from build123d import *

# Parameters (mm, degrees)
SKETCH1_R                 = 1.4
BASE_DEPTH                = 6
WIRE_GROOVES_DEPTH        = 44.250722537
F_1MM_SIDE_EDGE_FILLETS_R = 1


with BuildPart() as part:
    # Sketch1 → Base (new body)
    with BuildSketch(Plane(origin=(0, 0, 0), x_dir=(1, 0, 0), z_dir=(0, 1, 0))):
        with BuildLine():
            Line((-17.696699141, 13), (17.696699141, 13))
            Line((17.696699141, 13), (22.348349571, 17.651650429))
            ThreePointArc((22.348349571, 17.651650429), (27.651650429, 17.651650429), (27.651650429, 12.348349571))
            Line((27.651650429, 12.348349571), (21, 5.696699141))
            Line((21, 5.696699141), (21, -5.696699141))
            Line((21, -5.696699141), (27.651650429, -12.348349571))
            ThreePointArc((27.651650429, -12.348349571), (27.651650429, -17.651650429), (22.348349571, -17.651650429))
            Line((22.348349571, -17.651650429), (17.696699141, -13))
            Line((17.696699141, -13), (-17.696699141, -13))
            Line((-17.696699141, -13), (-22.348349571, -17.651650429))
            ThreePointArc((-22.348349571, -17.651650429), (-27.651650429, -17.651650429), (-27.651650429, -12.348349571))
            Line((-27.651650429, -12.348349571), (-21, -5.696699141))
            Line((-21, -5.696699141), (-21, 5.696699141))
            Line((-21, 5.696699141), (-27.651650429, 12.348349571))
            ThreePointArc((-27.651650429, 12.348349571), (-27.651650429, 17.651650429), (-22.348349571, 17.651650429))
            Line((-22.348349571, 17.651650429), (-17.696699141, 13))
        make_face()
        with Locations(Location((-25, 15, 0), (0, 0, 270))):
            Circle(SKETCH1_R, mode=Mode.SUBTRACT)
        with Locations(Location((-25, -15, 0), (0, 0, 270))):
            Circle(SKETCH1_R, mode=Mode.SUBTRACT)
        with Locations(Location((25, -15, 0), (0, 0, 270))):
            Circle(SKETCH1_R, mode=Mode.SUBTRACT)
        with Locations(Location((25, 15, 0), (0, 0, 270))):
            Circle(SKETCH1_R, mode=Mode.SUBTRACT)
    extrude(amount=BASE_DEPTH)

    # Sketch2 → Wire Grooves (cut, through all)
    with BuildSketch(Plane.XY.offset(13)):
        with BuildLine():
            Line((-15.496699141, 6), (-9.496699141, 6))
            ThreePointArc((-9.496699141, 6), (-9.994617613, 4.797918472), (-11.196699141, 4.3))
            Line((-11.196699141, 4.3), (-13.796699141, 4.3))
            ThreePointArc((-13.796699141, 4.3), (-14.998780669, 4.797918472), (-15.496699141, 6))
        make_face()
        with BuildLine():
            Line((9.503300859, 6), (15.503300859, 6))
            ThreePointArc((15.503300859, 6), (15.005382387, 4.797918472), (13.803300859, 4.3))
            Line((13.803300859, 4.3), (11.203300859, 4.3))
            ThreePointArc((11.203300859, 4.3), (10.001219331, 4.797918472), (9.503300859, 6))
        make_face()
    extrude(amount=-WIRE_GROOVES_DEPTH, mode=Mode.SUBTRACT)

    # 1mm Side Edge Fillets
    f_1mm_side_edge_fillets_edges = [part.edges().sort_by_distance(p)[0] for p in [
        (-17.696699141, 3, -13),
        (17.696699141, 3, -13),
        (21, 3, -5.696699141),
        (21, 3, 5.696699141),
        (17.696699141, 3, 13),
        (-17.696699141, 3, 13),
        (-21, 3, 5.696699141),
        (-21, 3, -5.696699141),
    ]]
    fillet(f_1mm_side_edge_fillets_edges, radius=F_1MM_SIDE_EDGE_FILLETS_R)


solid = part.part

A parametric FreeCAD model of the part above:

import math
import FreeCAD as App
import Part
import Sketcher

V = App.Vector


def edges_at(feature, points):
    """Names of the edges that pass closest to the given points."""
    edges = feature.Shape.Edges
    near = lambda p: min(range(len(edges)), key=lambda i: edges[i].distToShape(Part.Vertex(*p))[0])
    return sorted({f"Edge{near(p) + 1}" for p in points})

doc = App.newDocument("Part")
params = doc.addObject("Spreadsheet::Sheet", "Params")
for row, (alias, value) in enumerate([
    ("sketch1_diameter", "2.8 mm"),
    ("sketch1_radius", "3.75 mm"),
    ("pad1_length", "6 mm"),
    ("sketch2_radius", "1.7 mm"),
    ("sketch2_width", "6 mm"),
    ("fillet_radius", "1 mm"),
], start=1):
    params.set(f"A{row}", alias)
    params.set(f"B{row}", "=" + value)
    params.setAlias(f"B{row}", alias)

body = doc.addObject("PartDesign::Body", "Body")

# Sketch on XZ plane
sketch1 = body.newObject("Sketcher::SketchObject", "Sketch")
sketch1.AttachmentSupport = (doc.getObject("XZ_Plane"), [""])
sketch1.MapMode = "FlatFace"
sketch1.addGeometry(Part.LineSegment(V(17.7, -13, 0), V(-17.7, -13, 0)), False)
sketch1.addGeometry(Part.LineSegment(V(-17.7, -13, 0), V(-22.3, -17.7, 0)), False)
sketch1.addGeometry(Part.ArcOfCircle(Part.Circle(V(-25, -15, 0), V(0, 0, 1), 3.7), math.radians(135), math.radians(315)), False)
sketch1.addGeometry(Part.LineSegment(V(-27.7, -12.3, 0), V(-21, -5.7, 0)), False)
sketch1.addGeometry(Part.LineSegment(V(-21, -5.7, 0), V(-21, 5.7, 0)), False)
sketch1.addGeometry(Part.LineSegment(V(-21, 5.7, 0), V(-27.7, 12.3, 0)), False)
sketch1.addGeometry(Part.ArcOfCircle(Part.Circle(V(-25, 15, 0), V(0, 0, 1), 3.7), math.radians(45), math.radians(225)), False)
sketch1.addGeometry(Part.LineSegment(V(-22.3, 17.7, 0), V(-17.7, 13, 0)), False)
sketch1.addGeometry(Part.LineSegment(V(-17.7, 13, 0), V(17.7, 13, 0)), False)
sketch1.addGeometry(Part.LineSegment(V(17.7, 13, 0), V(22.3, 17.7, 0)), False)
sketch1.addGeometry(Part.ArcOfCircle(Part.Circle(V(25, 15, 0), V(0, 0, 1), 3.7), math.radians(-45), math.radians(135)), False)
sketch1.addGeometry(Part.LineSegment(V(27.7, 12.3, 0), V(21, 5.7, 0)), False)
sketch1.addGeometry(Part.LineSegment(V(21, 5.7, 0), V(21, -5.7, 0)), False)
sketch1.addGeometry(Part.LineSegment(V(21, -5.7, 0), V(27.7, -12.3, 0)), False)
sketch1.addGeometry(Part.ArcOfCircle(Part.Circle(V(25, -15, 0), V(0, 0, 1), 3.7), math.radians(-135), math.radians(45)), False)
sketch1.addGeometry(Part.LineSegment(V(22.3, -17.7, 0), V(17.7, -13, 0)), False)
sketch1.addGeometry(Part.Circle(V(25, 15, 0), V(0, 0, 1), 1.4), False)
sketch1.addGeometry(Part.Circle(V(-25, 15, 0), V(0, 0, 1), 1.4), False)
sketch1.addGeometry(Part.Circle(V(25, -15, 0), V(0, 0, 1), 1.4), False)
sketch1.addGeometry(Part.Circle(V(-25, -15, 0), V(0, 0, 1), 1.4), False)
sketch1.addConstraint(Sketcher.Constraint("Coincident", 0, 2, 1, 1))
sketch1.addConstraint(Sketcher.Constraint("Tangent", 1, 2, 2, 2))
sketch1.addConstraint(Sketcher.Constraint("Tangent", 2, 1, 3, 1))
sketch1.addConstraint(Sketcher.Constraint("Coincident", 3, 2, 4, 1))
sketch1.addConstraint(Sketcher.Constraint("Coincident", 4, 2, 5, 1))
sketch1.addConstraint(Sketcher.Constraint("Tangent", 5, 2, 6, 2))
sketch1.addConstraint(Sketcher.Constraint("Tangent", 6, 1, 7, 1))
sketch1.addConstraint(Sketcher.Constraint("Coincident", 7, 2, 8, 1))
sketch1.addConstraint(Sketcher.Constraint("Coincident", 8, 2, 9, 1))
sketch1.addConstraint(Sketcher.Constraint("Tangent", 9, 2, 10, 2))
sketch1.addConstraint(Sketcher.Constraint("Tangent", 10, 1, 11, 1))
sketch1.addConstraint(Sketcher.Constraint("Coincident", 11, 2, 12, 1))
sketch1.addConstraint(Sketcher.Constraint("Coincident", 12, 2, 13, 1))
sketch1.addConstraint(Sketcher.Constraint("Tangent", 13, 2, 14, 2))
sketch1.addConstraint(Sketcher.Constraint("Tangent", 14, 1, 15, 1))
sketch1.addConstraint(Sketcher.Constraint("Coincident", 15, 2, 0, 1))
sketch1.addConstraint(Sketcher.Constraint("Horizontal", 0))
sketch1.addConstraint(Sketcher.Constraint("Vertical", 4))
sketch1.addConstraint(Sketcher.Constraint("Horizontal", 8))
sketch1.addConstraint(Sketcher.Constraint("Vertical", 12))
sketch1.addConstraint(Sketcher.Constraint("Coincident", 16, 3, 10, 3))
sketch1.addConstraint(Sketcher.Constraint("Coincident", 17, 3, 6, 3))
sketch1.addConstraint(Sketcher.Constraint("Coincident", 18, 3, 14, 3))
sketch1.addConstraint(Sketcher.Constraint("Coincident", 19, 3, 2, 3))
sketch1.addConstraint(Sketcher.Constraint("Equal", 2, 6))
sketch1.addConstraint(Sketcher.Constraint("Equal", 6, 10))
sketch1.addConstraint(Sketcher.Constraint("Equal", 10, 14))
sketch1.addConstraint(Sketcher.Constraint("Equal", 16, 17))
sketch1.addConstraint(Sketcher.Constraint("Equal", 17, 18))
sketch1.addConstraint(Sketcher.Constraint("Equal", 18, 19))
sketch1.addConstraint(Sketcher.Constraint("Symmetric", 2, 3, 10, 3, -1, 1))
sketch1.addConstraint(Sketcher.Constraint("Symmetric", 6, 3, 14, 3, -1, 1))
sketch1.addConstraint(Sketcher.Constraint("Symmetric", 0, 2, 8, 2, -1, 1))
sketch1.addConstraint(Sketcher.Constraint("Symmetric", 3, 2, 11, 2, -1, 1))
sketch1.addConstraint(Sketcher.Constraint("Symmetric", 6, 3, 10, 3, -2))
sketch1.addConstraint(Sketcher.Constraint("Parallel", 1, 3))
sketch1.addConstraint(Sketcher.Constraint("Perpendicular", 3, 5))
sketch1.addConstraint(Sketcher.Constraint("Parallel", 5, 7))
sketch1.addConstraint(Sketcher.Constraint("Perpendicular", 11, 13))
sketch1.addConstraint(Sketcher.Constraint("Parallel", 13, 15))
sketch1.addConstraint(Sketcher.Constraint("Horizontal", 6, 1, 9, 2))
sketch1.addConstraint(Sketcher.Constraint("Diameter", 16, 2.8))
sketch1.addConstraint(Sketcher.Constraint("Radius", 2, 3.75))
sketch1.addConstraint(Sketcher.Constraint("DistanceX", 2, 3, -1, 1, 25.0))
sketch1.addConstraint(Sketcher.Constraint("DistanceY", 2, 3, -1, 1, 15.0))
sketch1.addConstraint(Sketcher.Constraint("DistanceY", 0, 2, -1, 1, 13.0))
sketch1.addConstraint(Sketcher.Constraint("DistanceX", 3, 2, -1, 1, 21.0))
sketch1.setExpression("Constraints[41]", "Params.sketch1_diameter")
sketch1.setExpression("Constraints[42]", "Params.sketch1_radius")
pad1 = body.newObject("PartDesign::Pad", "Pad")
pad1.Profile = sketch1
pad1.setExpression("Length", "Params.pad1_length")
pad1.Reversed = True

# Sketch on XY plane
sketch2 = body.newObject("Sketcher::SketchObject", "Sketch001")
sketch2.AttachmentSupport = (doc.getObject("XY_Plane"), [""])
sketch2.MapMode = "FlatFace"
sketch2.AttachmentOffset = App.Placement(V(0, 0, 13), App.Rotation())
sketch2.addGeometry(Part.LineSegment(V(-9.5, 6, 0), V(-15.5, 6, 0)), False)
sketch2.addGeometry(Part.ArcOfCircle(Part.Circle(V(-13.8, 6, 0), V(0, 0, 1), 1.7), math.radians(180), math.radians(270)), False)
sketch2.addGeometry(Part.LineSegment(V(-13.8, 4.3, 0), V(-11.2, 4.3, 0)), False)
sketch2.addGeometry(Part.ArcOfCircle(Part.Circle(V(-11.2, 6, 0), V(0, 0, 1), 1.7), math.radians(-90), math.radians(0)), False)
sketch2.addGeometry(Part.LineSegment(V(15.5, 6, 0), V(9.5, 6, 0)), False)
sketch2.addGeometry(Part.ArcOfCircle(Part.Circle(V(11.2, 6, 0), V(0, 0, 1), 1.7), math.radians(180), math.radians(270)), False)
sketch2.addGeometry(Part.LineSegment(V(11.2, 4.3, 0), V(13.8, 4.3, 0)), False)
sketch2.addGeometry(Part.ArcOfCircle(Part.Circle(V(13.8, 6, 0), V(0, 0, 1), 1.7), math.radians(-90), math.radians(0)), False)
sketch2.addConstraint(Sketcher.Constraint("Coincident", 0, 2, 1, 1))
sketch2.addConstraint(Sketcher.Constraint("Tangent", 1, 2, 2, 1))
sketch2.addConstraint(Sketcher.Constraint("Tangent", 2, 2, 3, 1))
sketch2.addConstraint(Sketcher.Constraint("Coincident", 3, 2, 0, 1))
sketch2.addConstraint(Sketcher.Constraint("Coincident", 4, 2, 5, 1))
sketch2.addConstraint(Sketcher.Constraint("Tangent", 5, 2, 6, 1))
sketch2.addConstraint(Sketcher.Constraint("Tangent", 6, 2, 7, 1))
sketch2.addConstraint(Sketcher.Constraint("Coincident", 7, 2, 4, 1))
sketch2.addConstraint(Sketcher.Constraint("Horizontal", 0))
sketch2.addConstraint(Sketcher.Constraint("Horizontal", 2))
sketch2.addConstraint(Sketcher.Constraint("Horizontal", 4))
sketch2.addConstraint(Sketcher.Constraint("Horizontal", 6))
sketch2.addConstraint(Sketcher.Constraint("Equal", 1, 3))
sketch2.addConstraint(Sketcher.Constraint("Equal", 3, 5))
sketch2.addConstraint(Sketcher.Constraint("Equal", 5, 7))
sketch2.addConstraint(Sketcher.Constraint("Horizontal", 3, 3, 5, 3))
sketch2.addConstraint(Sketcher.Constraint("Horizontal", 7, 3, 0, 2))
sketch2.addConstraint(Sketcher.Constraint("Horizontal", 3, 2, 4, 2))
sketch2.addConstraint(Sketcher.Constraint("Equal", 0, 4))
sketch2.addConstraint(Sketcher.Constraint("Radius", 1, 1.7))
sketch2.addConstraint(Sketcher.Constraint("DistanceX", 0, 2, 0, 1, 6.0))
sketch2.addConstraint(Sketcher.Constraint("DistanceY", -1, 1, 1, 3, 6.0))
sketch2.addConstraint(Sketcher.Constraint("DistanceX", 1, 3, 5, 3, 25.0))
sketch2.addConstraint(Sketcher.Constraint("DistanceX", 1, 3, -1, 1, 13.796699))
sketch2.setExpression("Constraints[19]", "Params.sketch2_radius")
sketch2.setExpression("Constraints[20]", "Params.sketch2_width")
pocket1 = body.newObject("PartDesign::Pocket", "Pocket")
pocket1.Profile = sketch2
pocket1.Type = "ThroughAll"
doc.recompute()

fillet = body.newObject("PartDesign::Fillet", "Fillet")
fillet.Base = (pocket1, edges_at(pocket1, [
    (-17.697, 3, -13),
    (17.697, 3, -13),
    (21, 3, -5.697),
    (21, 3, 5.697),
    (17.697, 3, 13),
    (-17.697, 3, 13),
    (-21, 3, 5.697),
    (-21, 3, -5.697),
]))
fillet.setExpression("Radius", "Params.fillet_radius")

doc.recompute()
